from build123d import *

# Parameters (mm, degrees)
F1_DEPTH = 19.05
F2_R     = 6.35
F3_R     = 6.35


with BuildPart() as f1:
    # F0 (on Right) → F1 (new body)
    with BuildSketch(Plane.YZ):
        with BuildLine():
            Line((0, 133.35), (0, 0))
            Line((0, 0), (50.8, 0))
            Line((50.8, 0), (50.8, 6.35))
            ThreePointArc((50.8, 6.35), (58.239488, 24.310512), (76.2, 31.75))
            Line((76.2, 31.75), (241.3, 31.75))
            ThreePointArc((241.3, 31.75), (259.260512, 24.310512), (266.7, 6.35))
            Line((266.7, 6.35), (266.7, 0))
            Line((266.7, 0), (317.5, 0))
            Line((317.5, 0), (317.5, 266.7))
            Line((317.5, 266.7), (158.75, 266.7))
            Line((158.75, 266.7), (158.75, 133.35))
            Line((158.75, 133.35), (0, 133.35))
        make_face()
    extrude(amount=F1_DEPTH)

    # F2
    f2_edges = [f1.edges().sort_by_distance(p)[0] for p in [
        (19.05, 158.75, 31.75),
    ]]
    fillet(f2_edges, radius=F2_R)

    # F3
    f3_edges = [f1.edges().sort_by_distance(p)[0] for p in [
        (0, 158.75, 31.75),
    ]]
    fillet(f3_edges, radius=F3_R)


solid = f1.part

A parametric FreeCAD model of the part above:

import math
import FreeCAD as App
import Part
import Sketcher

V = App.Vector
Q = App.Units.Quantity


def edges_at(feature, points):
    """Names of the edges that pass closest to the given points."""
    edges = feature.Shape.Edges
    near = lambda p: min(range(len(edges)), key=lambda i: edges[i].distToShape(Part.Vertex(*p))[0])
    return sorted({f"Edge{near(p) + 1}" for p in points})

doc = App.newDocument("Part")
body = doc.addObject("PartDesign::Body", "Body")

# Sketch on YZ plane
sketch1 = body.newObject("Sketcher::SketchObject", "Sketch")
sketch1.AttachmentSupport = (doc.getObject("YZ_Plane"), [""])
sketch1.MapMode = "FlatFace"
sketch1.addGeometry([
    Part.LineSegment(V(0, 133, 0), V(0, 0, 0)),  # 0
    Part.LineSegment(V(0, 0, 0), V(51, 0, 0)),  # 1
    Part.LineSegment(V(51, 0, 0), V(51, 6, 0)),  # 2
    Part.ArcOfCircle(Part.Circle(V(76, 6, 0), V(0, 0, 1), 25), math.radians(90), math.radians(180)),  # 3
    Part.LineSegment(V(76, 32, 0), V(241, 32, 0)),  # 4
    Part.ArcOfCircle(Part.Circle(V(241, 6, 0), V(0, 0, 1), 25), math.radians(0), math.radians(90)),  # 5
    Part.LineSegment(V(267, 6, 0), V(267, 0, 0)),  # 6
    Part.LineSegment(V(267, 0, 0), V(318, 0, 0)),  # 7
    Part.LineSegment(V(318, 0, 0), V(318, 267, 0)),  # 8
    Part.LineSegment(V(318, 267, 0), V(159, 267, 0)),  # 9
    Part.LineSegment(V(159, 267, 0), V(159, 133, 0)),  # 10
    Part.LineSegment(V(159, 133, 0), V(0, 133, 0)),  # 11
], False)
sketch1.addConstraint([
    Sketcher.Constraint("Coincident", 0, 2, 1, 1),
    Sketcher.Constraint("Coincident", 1, 2, 2, 1),
    Sketcher.Constraint("Tangent", 2, 2, 3, 2),
    Sketcher.Constraint("Tangent", 3, 1, 4, 1),
    Sketcher.Constraint("Tangent", 4, 2, 5, 2),
    Sketcher.Constraint("Tangent", 5, 1, 6, 1),
    Sketcher.Constraint("Coincident", 6, 2, 7, 1),
    Sketcher.Constraint("Coincident", 7, 2, 8, 1),
    Sketcher.Constraint("Coincident", 8, 2, 9, 1),
    Sketcher.Constraint("Coincident", 9, 2, 10, 1),
    Sketcher.Constraint("Coincident", 10, 2, 11, 1),
    Sketcher.Constraint("Coincident", 11, 2, 0, 1),
    Sketcher.Constraint("Vertical", 0),
    Sketcher.Constraint("Horizontal", 1),
    Sketcher.Constraint("Vertical", 2),
    Sketcher.Constraint("Horizontal", 4),
    Sketcher.Constraint("Vertical", 6),
    Sketcher.Constraint("Horizontal", 7),
    Sketcher.Constraint("Vertical", 8),
    Sketcher.Constraint("Horizontal", 9),
    Sketcher.Constraint("Vertical", 10),
    Sketcher.Constraint("Horizontal", 11),
    Sketcher.Constraint("Coincident", 0, 2, -1, 1),
    Sketcher.Constraint("Equal", 3, 5),
    Sketcher.Constraint("PointOnObject", 6, 2, -1),
    Sketcher.Constraint("Equal", 1, 7),
    Sketcher.Constraint("Equal", 9, 11),
    Sketcher.Constraint("Equal", 0, 10),
    Sketcher.Constraint("Radius", 3, Q("1 in")),
    Sketcher.Constraint("DistanceX", 1, 1, 1, 2, Q("2 in")),
    Sketcher.Constraint("DistanceX", 4, 1, 4, 2, Q("6.5 in")),
    Sketcher.Constraint("DistanceY", 8, 1, 8, 2, Q("10.5 in")),
    Sketcher.Constraint("DistanceY", 3, 1, 10, 2, Q("4 in")),
])
pad1 = body.newObject("PartDesign::Pad", "Pad")
pad1.Profile = sketch1
pad1.Length = Q("0.75 in")
doc.recompute()

fillet = body.newObject("PartDesign::Fillet", "Fillet")
fillet.Base = (pad1, edges_at(pad1, [(19.05, 158.75, 31.75)]))
fillet.Radius = Q("0.25 in")
doc.recompute()

fillet2 = body.newObject("PartDesign::Fillet", "Fillet001")
fillet2.Base = (fillet, edges_at(fillet, [(0, 158.75, 31.75)]))
fillet2.Radius = Q("0.25 in")

doc.recompute()
